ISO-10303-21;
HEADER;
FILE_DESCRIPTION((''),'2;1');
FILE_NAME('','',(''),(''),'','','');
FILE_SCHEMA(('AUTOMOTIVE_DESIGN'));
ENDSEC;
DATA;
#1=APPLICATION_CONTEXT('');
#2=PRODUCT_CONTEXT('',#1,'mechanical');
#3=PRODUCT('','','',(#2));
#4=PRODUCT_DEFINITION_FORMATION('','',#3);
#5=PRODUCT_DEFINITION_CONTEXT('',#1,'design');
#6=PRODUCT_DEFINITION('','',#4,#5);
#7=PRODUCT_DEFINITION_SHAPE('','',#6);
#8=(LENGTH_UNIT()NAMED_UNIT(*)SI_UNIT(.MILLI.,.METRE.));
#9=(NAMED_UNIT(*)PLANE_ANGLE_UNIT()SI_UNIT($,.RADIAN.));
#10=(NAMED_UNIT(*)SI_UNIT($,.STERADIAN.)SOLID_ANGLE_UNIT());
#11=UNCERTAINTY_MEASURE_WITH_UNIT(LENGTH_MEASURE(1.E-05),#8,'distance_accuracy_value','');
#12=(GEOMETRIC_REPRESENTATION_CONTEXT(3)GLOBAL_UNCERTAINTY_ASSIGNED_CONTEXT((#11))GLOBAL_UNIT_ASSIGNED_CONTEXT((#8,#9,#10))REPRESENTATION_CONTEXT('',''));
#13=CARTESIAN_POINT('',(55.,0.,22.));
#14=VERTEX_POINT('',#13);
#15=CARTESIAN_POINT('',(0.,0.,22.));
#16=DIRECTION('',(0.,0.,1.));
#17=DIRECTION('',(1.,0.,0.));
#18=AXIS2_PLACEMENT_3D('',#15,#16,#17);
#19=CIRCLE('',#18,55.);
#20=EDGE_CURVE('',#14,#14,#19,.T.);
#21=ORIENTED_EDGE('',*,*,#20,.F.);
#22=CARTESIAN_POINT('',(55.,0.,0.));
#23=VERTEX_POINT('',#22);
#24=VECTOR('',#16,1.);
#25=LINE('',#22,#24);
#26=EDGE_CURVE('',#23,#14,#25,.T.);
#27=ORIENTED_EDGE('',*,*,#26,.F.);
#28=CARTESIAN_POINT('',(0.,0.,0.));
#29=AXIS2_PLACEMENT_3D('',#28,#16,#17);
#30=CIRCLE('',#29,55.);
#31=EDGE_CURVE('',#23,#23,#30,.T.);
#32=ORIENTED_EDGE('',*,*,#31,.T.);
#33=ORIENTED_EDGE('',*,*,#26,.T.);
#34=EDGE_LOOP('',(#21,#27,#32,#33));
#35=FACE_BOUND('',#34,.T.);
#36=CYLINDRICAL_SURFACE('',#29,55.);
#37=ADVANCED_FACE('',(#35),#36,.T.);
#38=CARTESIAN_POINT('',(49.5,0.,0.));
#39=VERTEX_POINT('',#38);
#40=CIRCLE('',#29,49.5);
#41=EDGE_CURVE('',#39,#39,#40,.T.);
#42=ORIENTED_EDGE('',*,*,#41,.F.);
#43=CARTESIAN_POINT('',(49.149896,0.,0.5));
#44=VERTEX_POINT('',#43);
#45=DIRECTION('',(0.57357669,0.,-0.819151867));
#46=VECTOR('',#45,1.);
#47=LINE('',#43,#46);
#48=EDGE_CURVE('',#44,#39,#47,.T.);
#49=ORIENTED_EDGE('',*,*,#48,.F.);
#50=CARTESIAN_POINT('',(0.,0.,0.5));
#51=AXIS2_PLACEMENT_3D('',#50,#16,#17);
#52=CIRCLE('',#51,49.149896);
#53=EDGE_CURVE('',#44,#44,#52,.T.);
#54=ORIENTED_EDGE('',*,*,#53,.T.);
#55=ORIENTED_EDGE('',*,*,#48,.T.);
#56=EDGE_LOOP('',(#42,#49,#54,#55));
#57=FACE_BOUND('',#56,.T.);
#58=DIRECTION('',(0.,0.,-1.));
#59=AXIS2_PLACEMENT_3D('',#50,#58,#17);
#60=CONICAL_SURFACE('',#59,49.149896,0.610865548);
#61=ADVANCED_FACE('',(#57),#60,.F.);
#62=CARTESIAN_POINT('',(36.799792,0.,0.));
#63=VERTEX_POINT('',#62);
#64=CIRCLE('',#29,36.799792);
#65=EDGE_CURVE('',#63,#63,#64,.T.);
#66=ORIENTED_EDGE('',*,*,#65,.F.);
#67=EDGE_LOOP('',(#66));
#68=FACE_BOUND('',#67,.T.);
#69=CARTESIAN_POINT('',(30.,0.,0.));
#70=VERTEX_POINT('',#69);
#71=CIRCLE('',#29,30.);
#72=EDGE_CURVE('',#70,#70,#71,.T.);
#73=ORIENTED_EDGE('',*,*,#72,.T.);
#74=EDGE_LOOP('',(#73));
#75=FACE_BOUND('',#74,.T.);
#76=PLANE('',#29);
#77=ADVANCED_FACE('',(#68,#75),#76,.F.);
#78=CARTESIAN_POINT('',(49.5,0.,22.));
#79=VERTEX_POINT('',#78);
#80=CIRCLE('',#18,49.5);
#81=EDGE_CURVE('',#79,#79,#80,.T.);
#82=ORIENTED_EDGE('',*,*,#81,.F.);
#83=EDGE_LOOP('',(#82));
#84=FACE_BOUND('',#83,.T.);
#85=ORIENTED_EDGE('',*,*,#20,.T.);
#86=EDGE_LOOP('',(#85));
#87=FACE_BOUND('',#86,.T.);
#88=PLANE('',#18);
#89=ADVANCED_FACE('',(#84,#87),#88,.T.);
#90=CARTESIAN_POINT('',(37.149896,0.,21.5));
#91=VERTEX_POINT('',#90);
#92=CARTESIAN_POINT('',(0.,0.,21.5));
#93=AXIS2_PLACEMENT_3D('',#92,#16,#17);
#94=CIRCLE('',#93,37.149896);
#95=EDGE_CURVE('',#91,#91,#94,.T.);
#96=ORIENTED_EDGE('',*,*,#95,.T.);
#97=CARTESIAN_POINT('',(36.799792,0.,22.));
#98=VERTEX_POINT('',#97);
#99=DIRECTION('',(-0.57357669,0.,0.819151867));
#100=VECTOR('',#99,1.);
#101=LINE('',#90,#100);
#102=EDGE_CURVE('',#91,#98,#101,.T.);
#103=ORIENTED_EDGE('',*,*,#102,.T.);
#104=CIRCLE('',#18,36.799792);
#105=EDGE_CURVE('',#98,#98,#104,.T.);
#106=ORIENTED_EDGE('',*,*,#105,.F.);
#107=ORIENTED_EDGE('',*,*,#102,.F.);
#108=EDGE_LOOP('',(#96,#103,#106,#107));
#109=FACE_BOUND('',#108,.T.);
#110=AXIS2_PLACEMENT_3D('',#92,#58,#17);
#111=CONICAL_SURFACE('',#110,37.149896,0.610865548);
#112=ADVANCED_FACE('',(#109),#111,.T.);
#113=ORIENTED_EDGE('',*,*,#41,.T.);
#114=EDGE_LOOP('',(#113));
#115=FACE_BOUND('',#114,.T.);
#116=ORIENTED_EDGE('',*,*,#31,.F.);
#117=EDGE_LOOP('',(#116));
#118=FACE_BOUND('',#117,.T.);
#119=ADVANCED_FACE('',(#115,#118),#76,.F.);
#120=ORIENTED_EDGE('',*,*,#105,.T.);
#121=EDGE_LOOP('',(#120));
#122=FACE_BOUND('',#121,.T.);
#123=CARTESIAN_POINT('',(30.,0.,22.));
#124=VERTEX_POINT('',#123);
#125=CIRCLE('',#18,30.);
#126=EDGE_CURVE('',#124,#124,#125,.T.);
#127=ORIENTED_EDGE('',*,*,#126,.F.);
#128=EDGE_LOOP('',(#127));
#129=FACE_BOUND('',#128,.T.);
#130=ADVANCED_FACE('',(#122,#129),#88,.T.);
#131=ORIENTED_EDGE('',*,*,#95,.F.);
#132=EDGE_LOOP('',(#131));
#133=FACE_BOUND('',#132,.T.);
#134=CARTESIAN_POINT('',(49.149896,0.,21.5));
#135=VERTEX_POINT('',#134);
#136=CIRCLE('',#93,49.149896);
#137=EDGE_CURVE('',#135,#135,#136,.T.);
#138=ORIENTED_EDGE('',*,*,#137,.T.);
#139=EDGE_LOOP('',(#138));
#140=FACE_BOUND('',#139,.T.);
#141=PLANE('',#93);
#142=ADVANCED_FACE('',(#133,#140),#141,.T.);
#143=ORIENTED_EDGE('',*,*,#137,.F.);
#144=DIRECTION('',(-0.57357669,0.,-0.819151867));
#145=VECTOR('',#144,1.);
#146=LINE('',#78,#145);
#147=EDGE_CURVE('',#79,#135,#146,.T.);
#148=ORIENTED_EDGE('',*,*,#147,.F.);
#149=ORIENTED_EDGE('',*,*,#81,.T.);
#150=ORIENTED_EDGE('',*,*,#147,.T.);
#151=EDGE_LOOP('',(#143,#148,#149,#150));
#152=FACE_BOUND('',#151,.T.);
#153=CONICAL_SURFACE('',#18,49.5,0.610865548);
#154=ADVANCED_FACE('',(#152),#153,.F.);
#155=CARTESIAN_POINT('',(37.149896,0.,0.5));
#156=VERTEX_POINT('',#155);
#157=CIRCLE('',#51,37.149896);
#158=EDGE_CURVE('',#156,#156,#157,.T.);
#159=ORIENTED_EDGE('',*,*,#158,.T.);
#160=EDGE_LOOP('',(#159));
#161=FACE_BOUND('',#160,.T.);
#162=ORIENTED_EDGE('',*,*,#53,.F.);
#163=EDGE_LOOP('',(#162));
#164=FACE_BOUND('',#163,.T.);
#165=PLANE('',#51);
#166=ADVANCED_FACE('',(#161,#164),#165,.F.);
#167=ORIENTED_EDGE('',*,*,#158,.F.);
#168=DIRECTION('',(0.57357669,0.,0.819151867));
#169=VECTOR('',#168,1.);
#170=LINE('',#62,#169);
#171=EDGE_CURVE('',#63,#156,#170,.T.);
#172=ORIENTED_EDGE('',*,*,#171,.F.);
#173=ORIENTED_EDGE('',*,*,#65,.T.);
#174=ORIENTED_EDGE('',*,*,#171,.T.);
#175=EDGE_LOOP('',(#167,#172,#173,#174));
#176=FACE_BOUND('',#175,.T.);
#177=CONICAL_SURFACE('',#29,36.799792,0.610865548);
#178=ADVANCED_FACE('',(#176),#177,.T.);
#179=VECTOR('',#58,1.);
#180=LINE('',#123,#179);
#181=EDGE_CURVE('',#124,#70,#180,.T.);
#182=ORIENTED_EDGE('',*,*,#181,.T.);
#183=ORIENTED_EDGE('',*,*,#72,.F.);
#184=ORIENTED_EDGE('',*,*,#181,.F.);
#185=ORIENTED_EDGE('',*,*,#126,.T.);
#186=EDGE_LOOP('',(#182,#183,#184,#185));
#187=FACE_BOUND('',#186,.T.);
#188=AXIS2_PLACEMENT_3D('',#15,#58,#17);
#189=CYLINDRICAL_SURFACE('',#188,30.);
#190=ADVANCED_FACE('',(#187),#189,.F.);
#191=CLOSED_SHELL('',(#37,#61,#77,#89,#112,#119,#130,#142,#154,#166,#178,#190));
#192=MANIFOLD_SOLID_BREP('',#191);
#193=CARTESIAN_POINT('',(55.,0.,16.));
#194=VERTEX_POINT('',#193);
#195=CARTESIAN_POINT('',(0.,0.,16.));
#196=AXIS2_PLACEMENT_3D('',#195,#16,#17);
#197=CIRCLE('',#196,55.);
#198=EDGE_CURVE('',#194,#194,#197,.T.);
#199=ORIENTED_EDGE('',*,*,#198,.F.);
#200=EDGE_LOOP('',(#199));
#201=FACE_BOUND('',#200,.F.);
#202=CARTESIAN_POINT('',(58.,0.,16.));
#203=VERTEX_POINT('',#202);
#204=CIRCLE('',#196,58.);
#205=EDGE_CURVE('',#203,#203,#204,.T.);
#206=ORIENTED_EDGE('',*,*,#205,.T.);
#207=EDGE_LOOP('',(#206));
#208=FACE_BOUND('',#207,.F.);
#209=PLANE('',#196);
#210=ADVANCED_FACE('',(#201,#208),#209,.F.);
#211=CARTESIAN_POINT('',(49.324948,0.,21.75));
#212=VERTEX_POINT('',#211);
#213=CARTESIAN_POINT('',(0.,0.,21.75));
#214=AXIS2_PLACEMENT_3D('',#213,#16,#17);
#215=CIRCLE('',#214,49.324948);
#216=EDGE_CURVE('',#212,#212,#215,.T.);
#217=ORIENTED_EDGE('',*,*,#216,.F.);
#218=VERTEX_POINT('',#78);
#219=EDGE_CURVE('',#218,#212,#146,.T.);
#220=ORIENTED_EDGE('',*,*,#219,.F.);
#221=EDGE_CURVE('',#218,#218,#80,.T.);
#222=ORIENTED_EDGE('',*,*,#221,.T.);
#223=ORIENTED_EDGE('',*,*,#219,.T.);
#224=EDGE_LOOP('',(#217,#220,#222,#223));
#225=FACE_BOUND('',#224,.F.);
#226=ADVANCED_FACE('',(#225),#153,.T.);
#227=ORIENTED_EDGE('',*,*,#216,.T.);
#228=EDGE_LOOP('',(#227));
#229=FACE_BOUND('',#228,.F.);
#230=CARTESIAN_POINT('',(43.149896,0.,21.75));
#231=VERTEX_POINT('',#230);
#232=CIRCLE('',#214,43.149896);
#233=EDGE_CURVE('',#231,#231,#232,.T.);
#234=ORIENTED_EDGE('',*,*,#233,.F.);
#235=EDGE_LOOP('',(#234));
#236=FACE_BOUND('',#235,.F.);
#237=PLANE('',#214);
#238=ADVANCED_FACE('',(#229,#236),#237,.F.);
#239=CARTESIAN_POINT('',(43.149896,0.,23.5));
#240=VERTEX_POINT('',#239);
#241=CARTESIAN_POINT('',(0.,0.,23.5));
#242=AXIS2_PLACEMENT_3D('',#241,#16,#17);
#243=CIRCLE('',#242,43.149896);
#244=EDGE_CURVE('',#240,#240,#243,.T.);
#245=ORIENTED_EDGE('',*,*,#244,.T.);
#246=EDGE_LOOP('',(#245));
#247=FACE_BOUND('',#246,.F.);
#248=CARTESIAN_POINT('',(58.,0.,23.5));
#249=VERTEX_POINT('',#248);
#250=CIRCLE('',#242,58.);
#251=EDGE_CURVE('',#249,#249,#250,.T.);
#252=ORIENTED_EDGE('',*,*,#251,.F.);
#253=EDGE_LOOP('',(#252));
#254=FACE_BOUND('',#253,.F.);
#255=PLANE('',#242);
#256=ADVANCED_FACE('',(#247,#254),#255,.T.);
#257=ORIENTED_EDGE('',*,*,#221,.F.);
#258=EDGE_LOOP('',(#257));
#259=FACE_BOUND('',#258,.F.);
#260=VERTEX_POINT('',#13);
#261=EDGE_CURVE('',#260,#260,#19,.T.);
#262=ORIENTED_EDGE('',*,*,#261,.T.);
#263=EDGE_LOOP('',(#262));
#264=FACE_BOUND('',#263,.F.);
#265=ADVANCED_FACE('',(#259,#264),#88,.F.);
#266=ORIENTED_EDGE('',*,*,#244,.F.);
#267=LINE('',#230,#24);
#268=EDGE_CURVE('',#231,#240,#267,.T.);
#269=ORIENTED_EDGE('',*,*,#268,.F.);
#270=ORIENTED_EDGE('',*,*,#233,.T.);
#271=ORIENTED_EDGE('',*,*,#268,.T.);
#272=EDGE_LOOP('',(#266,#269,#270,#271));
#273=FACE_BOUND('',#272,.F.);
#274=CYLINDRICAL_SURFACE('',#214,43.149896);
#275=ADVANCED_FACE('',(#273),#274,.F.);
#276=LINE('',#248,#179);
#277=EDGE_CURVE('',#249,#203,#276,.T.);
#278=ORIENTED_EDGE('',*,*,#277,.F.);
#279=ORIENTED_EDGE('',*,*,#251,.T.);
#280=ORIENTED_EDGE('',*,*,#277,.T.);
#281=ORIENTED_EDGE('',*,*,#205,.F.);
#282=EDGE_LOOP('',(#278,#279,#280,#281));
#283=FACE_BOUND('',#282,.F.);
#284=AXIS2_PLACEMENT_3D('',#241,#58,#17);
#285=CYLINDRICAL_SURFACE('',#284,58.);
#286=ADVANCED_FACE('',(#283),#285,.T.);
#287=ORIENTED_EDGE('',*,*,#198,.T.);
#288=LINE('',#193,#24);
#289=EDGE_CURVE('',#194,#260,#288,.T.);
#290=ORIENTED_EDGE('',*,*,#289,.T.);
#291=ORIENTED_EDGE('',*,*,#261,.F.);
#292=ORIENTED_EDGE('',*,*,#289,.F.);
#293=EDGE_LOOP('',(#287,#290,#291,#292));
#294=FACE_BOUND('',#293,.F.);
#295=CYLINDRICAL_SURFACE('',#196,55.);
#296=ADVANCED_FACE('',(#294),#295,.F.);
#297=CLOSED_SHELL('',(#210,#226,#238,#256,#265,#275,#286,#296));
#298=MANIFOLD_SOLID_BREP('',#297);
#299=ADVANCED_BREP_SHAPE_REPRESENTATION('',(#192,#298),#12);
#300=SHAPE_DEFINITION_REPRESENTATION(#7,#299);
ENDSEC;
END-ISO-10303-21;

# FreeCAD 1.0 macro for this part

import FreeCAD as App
import Part
import Sketcher
Q = App.Units.Quantity

doc = App.newDocument("Part")
params = doc.addObject("Spreadsheet::Sheet", "Params")
for row, (alias, value) in enumerate([
    ("sketch1_width", "12 mm"),
    ("sketch1_height", "22 mm"),
    ("sketch1_width2", "5.5 mm"),
    ("revolution_angle", "360 deg"),
    ("sketch2_width", "3 mm"),
    ("sketch2_height", "6 mm"),
    ("sketch2_width2", "5.5 mm"),
    ("sketch2_height2", "7.5 mm"),
    ("sketch2_height3", "1.75 mm"),
    ("revolution2_angle", "360 deg"),
], start=1):
    params.set(f"A{row}", alias)
    params.set(f"B{row}", "=" + value)
    params.setAlias(f"B{row}", alias)

body = doc.addObject("PartDesign::Body", "Body")

sketch1 = body.newObject("Sketcher::SketchObject", "Sketch")
sketch1.AttachmentSupport = (doc.getObject("XZ_Plane"), [""])
sketch1.MapMode = "FlatFace"
sketch1.addGeometry([
    Part.LineSegment(App.Vector(30, 22, 0), App.Vector(30, 0, 0)),
    Part.LineSegment(App.Vector(30, 0, 0), App.Vector(36.8, 0, 0)),
    Part.LineSegment(App.Vector(36.8, 0, 0), App.Vector(37.1, 0.5, 0)),
    Part.LineSegment(App.Vector(37.1, 0.5, 0), App.Vector(49.1, 0.5, 0)),
    Part.LineSegment(App.Vector(49.1, 0.5, 0), App.Vector(49.5, 0, 0)),
    Part.LineSegment(App.Vector(49.5, 0, 0), App.Vector(55, 0, 0)),
    Part.LineSegment(App.Vector(55, 0, 0), App.Vector(55, 22, 0)),
    Part.LineSegment(App.Vector(55, 22, 0), App.Vector(49.5, 22, 0)),
    Part.LineSegment(App.Vector(49.5, 22, 0), App.Vector(49.1, 21.5, 0)),
    Part.LineSegment(App.Vector(49.1, 21.5, 0), App.Vector(37.1, 21.5, 0)),
    Part.LineSegment(App.Vector(37.1, 21.5, 0), App.Vector(36.8, 22, 0)),
    Part.LineSegment(App.Vector(36.8, 22, 0), App.Vector(30, 22, 0)),
], False)
sketch1.addConstraint([
    Sketcher.Constraint("Coincident", 0, 2, 1, 1),
    Sketcher.Constraint("Coincident", 1, 2, 2, 1),
    Sketcher.Constraint("Coincident", 2, 2, 3, 1),
    Sketcher.Constraint("Coincident", 3, 2, 4, 1),
    Sketcher.Constraint("Coincident", 4, 2, 5, 1),
    Sketcher.Constraint("Coincident", 5, 2, 6, 1),
    Sketcher.Constraint("Coincident", 6, 2, 7, 1),
    Sketcher.Constraint("Coincident", 7, 2, 8, 1),
    Sketcher.Constraint("Coincident", 8, 2, 9, 1),
    Sketcher.Constraint("Coincident", 9, 2, 10, 1),
    Sketcher.Constraint("Coincident", 10, 2, 11, 1),
    Sketcher.Constraint("Coincident", 11, 2, 0, 1),
    Sketcher.Constraint("Vertical", 0),
    Sketcher.Constraint("Horizontal", 1),
    Sketcher.Constraint("Horizontal", 3),
    Sketcher.Constraint("Horizontal", 5),
    Sketcher.Constraint("Vertical", 6),
    Sketcher.Constraint("Horizontal", 7),
    Sketcher.Constraint("Horizontal", 9),
    Sketcher.Constraint("Horizontal", 11),
    Sketcher.Constraint("PointOnObject", 0, 2, -1),
    Sketcher.Constraint("PointOnObject", 4, 2, -1),
    Sketcher.Constraint("Parallel", 2, 8),
    Sketcher.Constraint("Parallel", 4, 10),
    Sketcher.Constraint("Horizontal", 7, 2, 10, 2),
    Sketcher.Constraint("Vertical", 4, 2, 7, 2),
    Sketcher.Constraint("Vertical", 3, 2, 8, 2),
    Sketcher.Constraint("Vertical", 2, 2, 9, 2),
    Sketcher.Constraint("Vertical", 1, 2, 10, 2),
    Sketcher.Constraint("DistanceX", 3, 1, 3, 2, 12.0),
    Sketcher.Constraint("DistanceY", 0, 2, 0, 1, 22.0),
    Sketcher.Constraint("Angle", 2, Q("54.999982 deg")),
    Sketcher.Constraint("DistanceX", 5, 1, 5, 2, 5.5),
    Sketcher.Constraint("DistanceX", -1, 1, 0, 2, 30.0),
    Sketcher.Constraint("DistanceX", -1, 1, 5, 2, 55.0),
    Sketcher.Constraint("DistanceY", 3, 2, 8, 2, 21.0),
])
sketch1.setExpression("Constraints[29]", "Params.sketch1_width")
sketch1.setExpression("Constraints[30]", "Params.sketch1_height")
sketch1.setExpression("Constraints[32]", "Params.sketch1_width2")
revolution = body.newObject("PartDesign::Revolution", "Revolution")
revolution.Profile = sketch1
revolution.ReferenceAxis = (sketch1, ["V_Axis"])
revolution.setExpression("Angle", "Params.revolution_angle")
body2 = doc.addObject("PartDesign::Body", "Body001")

sketch2 = body2.newObject("Sketcher::SketchObject", "Sketch001")
sketch2.AttachmentSupport = (doc.getObject("XZ_Plane001"), [""])
sketch2.MapMode = "FlatFace"
sketch2.addGeometry([
    Part.LineSegment(App.Vector(55, 22, 0), App.Vector(55, 16, 0)),
    Part.LineSegment(App.Vector(55, 16, 0), App.Vector(58, 16, 0)),
    Part.LineSegment(App.Vector(58, 16, 0), App.Vector(58, 23.5, 0)),
    Part.LineSegment(App.Vector(58, 23.5, 0), App.Vector(43.15, 23.5, 0)),
    Part.LineSegment(App.Vector(43.15, 23.5, 0), App.Vector(43.15, 21.75, 0)),
    Part.LineSegment(App.Vector(43.15, 21.75, 0), App.Vector(49.32, 21.75, 0)),
    Part.LineSegment(App.Vector(49.32, 21.75, 0), App.Vector(49.5, 22, 0)),
    Part.LineSegment(App.Vector(49.5, 22, 0), App.Vector(55, 22, 0)),
], False)
sketch2.addConstraint([
    Sketcher.Constraint("Coincident", 0, 2, 1, 1),
    Sketcher.Constraint("Coincident", 1, 2, 2, 1),
    Sketcher.Constraint("Coincident", 2, 2, 3, 1),
    Sketcher.Constraint("Coincident", 3, 2, 4, 1),
    Sketcher.Constraint("Coincident", 4, 2, 5, 1),
    Sketcher.Constraint("Coincident", 5, 2, 6, 1),
    Sketcher.Constraint("Coincident", 6, 2, 7, 1),
    Sketcher.Constraint("Coincident", 7, 2, 0, 1),
    Sketcher.Constraint("Vertical", 0),
    Sketcher.Constraint("Horizontal", 1),
    Sketcher.Constraint("Vertical", 2),
    Sketcher.Constraint("Horizontal", 3),
    Sketcher.Constraint("Vertical", 4),
    Sketcher.Constraint("Horizontal", 5),
    Sketcher.Constraint("Horizontal", 7),
    Sketcher.Constraint("DistanceX", 1, 1, 1, 2, 3.0),
    Sketcher.Constraint("DistanceY", 0, 2, 0, 1, 6.0),
    Sketcher.Constraint("Angle", 6, Q("54.999982 deg")),
    Sketcher.Constraint("DistanceX", 7, 1, 7, 2, 5.5),
    Sketcher.Constraint("DistanceY", 2, 1, 2, 2, 7.5),
    Sketcher.Constraint("DistanceX", -1, 1, 0, 2, 55.0),
    Sketcher.Constraint("DistanceY", -1, 1, 0, 2, 16.0),
    Sketcher.Constraint("DistanceY", 4, 2, 4, 1, 1.75),
    Sketcher.Constraint("DistanceX", 3, 2, 3, 1, 14.850104),
])
sketch2.setExpression("Constraints[15]", "Params.sketch2_width")
sketch2.setExpression("Constraints[16]", "Params.sketch2_height")
sketch2.setExpression("Constraints[18]", "Params.sketch2_width2")
sketch2.setExpression("Constraints[19]", "Params.sketch2_height2")
sketch2.setExpression("Constraints[22]", "Params.sketch2_height3")
revolution2 = body2.newObject("PartDesign::Revolution", "Revolution001")
revolution2.Profile = sketch2
revolution2.ReferenceAxis = (sketch2, ["V_Axis"])
revolution2.setExpression("Angle", "Params.revolution2_angle")

doc.recompute()
